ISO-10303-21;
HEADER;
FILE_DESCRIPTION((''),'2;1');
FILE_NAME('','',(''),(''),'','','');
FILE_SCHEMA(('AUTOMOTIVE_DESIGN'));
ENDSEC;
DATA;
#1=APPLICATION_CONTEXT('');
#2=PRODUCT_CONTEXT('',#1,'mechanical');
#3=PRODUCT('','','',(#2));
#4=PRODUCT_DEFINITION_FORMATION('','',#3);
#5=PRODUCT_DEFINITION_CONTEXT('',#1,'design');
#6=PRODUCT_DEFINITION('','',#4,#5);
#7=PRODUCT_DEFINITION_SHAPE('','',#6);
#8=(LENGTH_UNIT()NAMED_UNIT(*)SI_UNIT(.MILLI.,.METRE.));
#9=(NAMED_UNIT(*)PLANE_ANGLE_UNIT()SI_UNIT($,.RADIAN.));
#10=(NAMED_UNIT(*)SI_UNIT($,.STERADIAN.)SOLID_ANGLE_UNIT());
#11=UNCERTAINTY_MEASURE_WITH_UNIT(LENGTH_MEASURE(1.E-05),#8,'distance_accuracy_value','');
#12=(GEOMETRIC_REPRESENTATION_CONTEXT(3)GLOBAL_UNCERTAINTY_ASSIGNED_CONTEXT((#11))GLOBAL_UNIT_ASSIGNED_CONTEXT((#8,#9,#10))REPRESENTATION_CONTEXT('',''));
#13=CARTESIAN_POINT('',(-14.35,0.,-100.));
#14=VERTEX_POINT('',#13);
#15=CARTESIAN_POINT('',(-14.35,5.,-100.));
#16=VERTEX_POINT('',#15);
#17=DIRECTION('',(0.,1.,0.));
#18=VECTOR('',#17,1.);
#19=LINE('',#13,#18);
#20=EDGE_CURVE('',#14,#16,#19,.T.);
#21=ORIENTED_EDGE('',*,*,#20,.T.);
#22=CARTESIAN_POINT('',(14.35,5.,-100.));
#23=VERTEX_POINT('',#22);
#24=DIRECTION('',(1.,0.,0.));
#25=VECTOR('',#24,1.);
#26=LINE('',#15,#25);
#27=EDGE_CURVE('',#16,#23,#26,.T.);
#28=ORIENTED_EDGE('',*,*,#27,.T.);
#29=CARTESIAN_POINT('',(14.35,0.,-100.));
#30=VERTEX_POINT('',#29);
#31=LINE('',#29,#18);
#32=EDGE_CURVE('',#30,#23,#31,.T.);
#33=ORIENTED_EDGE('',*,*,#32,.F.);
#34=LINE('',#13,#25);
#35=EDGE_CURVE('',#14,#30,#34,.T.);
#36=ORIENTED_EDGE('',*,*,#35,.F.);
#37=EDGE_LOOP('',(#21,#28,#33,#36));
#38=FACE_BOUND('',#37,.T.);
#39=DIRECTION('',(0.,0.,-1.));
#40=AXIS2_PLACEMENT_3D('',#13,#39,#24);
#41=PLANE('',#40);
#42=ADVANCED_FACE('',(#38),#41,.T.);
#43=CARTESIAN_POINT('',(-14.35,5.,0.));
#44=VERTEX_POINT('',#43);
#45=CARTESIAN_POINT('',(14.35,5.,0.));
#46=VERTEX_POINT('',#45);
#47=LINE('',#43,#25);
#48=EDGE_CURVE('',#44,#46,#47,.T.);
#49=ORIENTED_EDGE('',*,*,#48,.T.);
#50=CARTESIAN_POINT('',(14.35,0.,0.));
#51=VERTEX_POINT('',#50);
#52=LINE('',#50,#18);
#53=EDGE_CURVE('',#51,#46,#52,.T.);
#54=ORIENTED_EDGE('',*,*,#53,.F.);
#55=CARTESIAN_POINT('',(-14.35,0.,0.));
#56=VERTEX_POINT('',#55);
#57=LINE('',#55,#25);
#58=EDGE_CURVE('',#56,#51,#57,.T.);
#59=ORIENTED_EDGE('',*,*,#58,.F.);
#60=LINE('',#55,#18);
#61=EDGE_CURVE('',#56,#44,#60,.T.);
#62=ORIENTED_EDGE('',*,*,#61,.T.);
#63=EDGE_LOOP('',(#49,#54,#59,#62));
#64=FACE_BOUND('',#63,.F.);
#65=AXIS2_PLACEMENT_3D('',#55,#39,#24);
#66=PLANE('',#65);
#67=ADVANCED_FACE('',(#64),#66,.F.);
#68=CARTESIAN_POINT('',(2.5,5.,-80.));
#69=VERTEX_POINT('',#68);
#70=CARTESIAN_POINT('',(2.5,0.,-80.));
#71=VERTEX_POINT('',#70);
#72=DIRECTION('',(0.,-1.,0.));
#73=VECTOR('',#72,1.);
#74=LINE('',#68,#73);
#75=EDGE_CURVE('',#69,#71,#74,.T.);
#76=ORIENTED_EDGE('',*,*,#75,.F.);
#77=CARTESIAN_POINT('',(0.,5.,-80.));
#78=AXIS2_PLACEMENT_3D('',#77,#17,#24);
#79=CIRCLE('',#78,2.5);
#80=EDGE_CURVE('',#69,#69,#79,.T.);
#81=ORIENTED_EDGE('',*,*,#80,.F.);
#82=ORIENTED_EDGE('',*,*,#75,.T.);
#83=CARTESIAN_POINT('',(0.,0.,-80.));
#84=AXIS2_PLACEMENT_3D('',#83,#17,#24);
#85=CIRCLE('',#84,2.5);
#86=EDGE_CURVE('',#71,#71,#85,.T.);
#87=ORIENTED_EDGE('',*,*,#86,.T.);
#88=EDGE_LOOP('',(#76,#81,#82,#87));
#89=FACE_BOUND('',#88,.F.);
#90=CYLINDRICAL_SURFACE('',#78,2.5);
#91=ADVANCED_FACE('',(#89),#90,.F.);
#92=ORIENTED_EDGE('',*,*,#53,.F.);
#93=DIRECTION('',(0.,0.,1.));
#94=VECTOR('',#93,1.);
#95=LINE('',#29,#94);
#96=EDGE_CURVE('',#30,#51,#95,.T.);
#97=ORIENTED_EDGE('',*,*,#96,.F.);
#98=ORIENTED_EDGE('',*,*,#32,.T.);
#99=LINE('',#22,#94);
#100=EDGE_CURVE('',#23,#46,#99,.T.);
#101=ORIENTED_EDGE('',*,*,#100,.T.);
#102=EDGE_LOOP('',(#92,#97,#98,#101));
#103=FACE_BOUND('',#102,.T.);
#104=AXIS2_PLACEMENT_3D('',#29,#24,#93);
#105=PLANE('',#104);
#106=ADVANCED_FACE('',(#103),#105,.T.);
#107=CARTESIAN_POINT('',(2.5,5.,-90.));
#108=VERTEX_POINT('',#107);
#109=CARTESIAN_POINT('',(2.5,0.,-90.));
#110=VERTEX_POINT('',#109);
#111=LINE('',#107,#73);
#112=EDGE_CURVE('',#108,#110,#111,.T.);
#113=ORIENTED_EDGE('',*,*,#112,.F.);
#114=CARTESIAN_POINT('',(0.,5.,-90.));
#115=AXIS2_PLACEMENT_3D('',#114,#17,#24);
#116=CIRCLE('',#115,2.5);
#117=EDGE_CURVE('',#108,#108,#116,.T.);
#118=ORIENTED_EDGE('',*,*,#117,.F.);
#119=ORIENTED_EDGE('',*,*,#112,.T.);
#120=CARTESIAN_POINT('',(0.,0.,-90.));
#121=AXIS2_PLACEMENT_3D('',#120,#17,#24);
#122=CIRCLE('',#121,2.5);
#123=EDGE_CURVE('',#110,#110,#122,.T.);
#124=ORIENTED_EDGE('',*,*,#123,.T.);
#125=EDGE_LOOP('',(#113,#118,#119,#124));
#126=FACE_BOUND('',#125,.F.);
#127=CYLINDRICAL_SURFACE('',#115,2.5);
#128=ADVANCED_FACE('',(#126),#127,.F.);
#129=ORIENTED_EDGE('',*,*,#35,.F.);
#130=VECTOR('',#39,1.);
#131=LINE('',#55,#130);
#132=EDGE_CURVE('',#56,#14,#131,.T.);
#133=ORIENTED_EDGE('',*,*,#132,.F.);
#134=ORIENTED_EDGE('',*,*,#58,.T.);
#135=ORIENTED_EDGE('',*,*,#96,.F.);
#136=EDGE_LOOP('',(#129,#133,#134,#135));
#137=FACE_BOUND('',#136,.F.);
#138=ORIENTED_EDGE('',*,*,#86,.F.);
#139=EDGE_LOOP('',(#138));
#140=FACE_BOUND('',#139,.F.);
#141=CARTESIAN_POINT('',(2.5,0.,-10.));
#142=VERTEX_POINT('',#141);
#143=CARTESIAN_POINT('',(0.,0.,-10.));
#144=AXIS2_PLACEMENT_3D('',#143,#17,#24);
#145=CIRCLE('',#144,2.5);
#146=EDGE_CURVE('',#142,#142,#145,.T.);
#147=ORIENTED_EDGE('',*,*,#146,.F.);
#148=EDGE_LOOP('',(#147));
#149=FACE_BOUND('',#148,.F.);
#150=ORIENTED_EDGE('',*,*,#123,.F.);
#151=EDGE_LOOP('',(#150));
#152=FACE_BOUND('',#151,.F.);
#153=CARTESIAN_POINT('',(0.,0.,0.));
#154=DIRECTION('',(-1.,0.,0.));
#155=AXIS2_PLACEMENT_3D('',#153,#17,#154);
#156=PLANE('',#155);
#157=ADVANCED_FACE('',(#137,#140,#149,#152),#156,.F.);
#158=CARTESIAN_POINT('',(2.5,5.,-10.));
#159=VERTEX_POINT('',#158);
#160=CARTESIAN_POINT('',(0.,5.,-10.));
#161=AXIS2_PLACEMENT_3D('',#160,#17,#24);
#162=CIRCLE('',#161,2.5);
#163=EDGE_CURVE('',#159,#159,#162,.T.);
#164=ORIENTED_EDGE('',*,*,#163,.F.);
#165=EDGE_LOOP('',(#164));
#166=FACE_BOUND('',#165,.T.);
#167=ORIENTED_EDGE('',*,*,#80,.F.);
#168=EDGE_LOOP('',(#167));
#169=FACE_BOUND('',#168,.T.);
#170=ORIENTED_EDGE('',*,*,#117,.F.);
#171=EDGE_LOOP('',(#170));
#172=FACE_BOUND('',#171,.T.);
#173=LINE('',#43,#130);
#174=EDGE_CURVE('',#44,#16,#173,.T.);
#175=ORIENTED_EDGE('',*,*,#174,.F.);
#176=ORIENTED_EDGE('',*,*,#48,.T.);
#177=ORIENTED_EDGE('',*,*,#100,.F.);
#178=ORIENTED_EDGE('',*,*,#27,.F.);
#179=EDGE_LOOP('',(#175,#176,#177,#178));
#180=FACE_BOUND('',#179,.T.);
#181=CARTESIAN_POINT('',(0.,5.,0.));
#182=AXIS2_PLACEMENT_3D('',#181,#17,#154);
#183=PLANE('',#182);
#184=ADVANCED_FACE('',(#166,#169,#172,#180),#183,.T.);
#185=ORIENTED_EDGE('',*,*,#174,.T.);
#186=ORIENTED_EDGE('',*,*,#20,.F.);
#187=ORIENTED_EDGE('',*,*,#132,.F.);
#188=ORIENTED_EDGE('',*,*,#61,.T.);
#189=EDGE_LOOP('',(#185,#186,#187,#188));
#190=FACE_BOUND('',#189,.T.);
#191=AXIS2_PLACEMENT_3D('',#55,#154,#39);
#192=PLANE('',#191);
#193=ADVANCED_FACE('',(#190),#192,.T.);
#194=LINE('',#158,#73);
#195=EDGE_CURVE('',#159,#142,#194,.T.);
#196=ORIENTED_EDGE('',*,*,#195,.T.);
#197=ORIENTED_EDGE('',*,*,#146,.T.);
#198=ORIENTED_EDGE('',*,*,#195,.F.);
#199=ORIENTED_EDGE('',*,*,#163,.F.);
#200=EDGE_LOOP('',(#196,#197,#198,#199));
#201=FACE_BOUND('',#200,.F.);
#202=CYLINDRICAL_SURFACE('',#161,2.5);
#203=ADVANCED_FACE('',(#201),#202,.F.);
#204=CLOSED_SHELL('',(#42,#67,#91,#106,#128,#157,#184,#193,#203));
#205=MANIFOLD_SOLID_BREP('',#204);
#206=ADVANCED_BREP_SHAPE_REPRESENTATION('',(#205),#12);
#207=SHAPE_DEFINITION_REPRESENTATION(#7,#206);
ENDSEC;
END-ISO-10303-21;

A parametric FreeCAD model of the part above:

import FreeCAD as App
import Part
import Sketcher


def add_polygon(sketch, points):
    """Adds a closed chain of lines whose ends are joined by coincident constraints."""
    first, n = sketch.GeometryCount, len(points)
    for a, b in zip(points, points[1:] + points[:1]):
        sketch.addGeometry(Part.LineSegment(App.Vector(*a, 0), App.Vector(*b, 0)), False)
    for i in range(n):
        sketch.addConstraint(Sketcher.Constraint("Coincident", first + i, 2, first + (i + 1) % n, 1))

doc = App.newDocument("Part")
params = doc.addObject("Spreadsheet::Sheet", "Params")
for row, (alias, value) in enumerate([
    ("sketch1_height", "100 mm"),
    ("sketch1_width", "28.7 mm"),
    ("pad1_length", "5 mm"),
    ("sketch2_diameter", "5 mm"),
], start=1):
    params.set(f"A{row}", alias)
    params.set(f"B{row}", "=" + value)
    params.setAlias(f"B{row}", alias)

body = doc.addObject("PartDesign::Body", "Body")

# Sketch on XZ plane
sketch1 = body.newObject("Sketcher::SketchObject", "Sketch")
sketch1.AttachmentSupport = (doc.getObject("XZ_Plane"), [""])
sketch1.MapMode = "FlatFace"
add_polygon(sketch1, [(14, -100), (-14, -100), (-14, 0), (14, 0)])  # lines 0-3
sketch1.addConstraint([
    Sketcher.Constraint("Horizontal", 0),
    Sketcher.Constraint("Vertical", 1),
    Sketcher.Constraint("Horizontal", 2),
    Sketcher.Constraint("Vertical", 3),
    Sketcher.Constraint("Symmetric", 1, 2, 2, 2, -1, 1),
    Sketcher.Constraint("DistanceY", 1, 1, 1, 2, 100.0),
    Sketcher.Constraint("DistanceX", 0, 2, 0, 1, 28.7),
])
sketch1.setExpression("Constraints[9]", "Params.sketch1_height")
sketch1.setExpression("Constraints[10]", "Params.sketch1_width")
pad1 = body.newObject("PartDesign::Pad", "Pad")
pad1.Profile = sketch1
pad1.setExpression("Length", "Params.pad1_length")
pad1.Reversed = True

# Sketch on XZ plane
sketch2 = body.newObject("Sketcher::SketchObject", "Sketch001")
sketch2.AttachmentSupport = (doc.getObject("XZ_Plane"), [""])
sketch2.MapMode = "FlatFace"
sketch2.AttachmentOffset = App.Placement(App.Vector(0, 0, -5), App.Rotation())
sketch2.addGeometry([
    Part.Circle(App.Vector(0, -80, 0), App.Vector(0, 0, 1), 2.5),
    Part.Circle(App.Vector(0, -90, 0), App.Vector(0, 0, 1), 2.5),
    Part.Circle(App.Vector(0, -10, 0), App.Vector(0, 0, 1), 2.5),
], False)
sketch2.addConstraint([
    Sketcher.Constraint("Equal", 0, 1),
    Sketcher.Constraint("Equal", 1, 2),
    Sketcher.Constraint("PointOnObject", 0, 3, -2),
    Sketcher.Constraint("PointOnObject", 1, 3, -2),
    Sketcher.Constraint("PointOnObject", 2, 3, -2),
    Sketcher.Constraint("Diameter", 0, 5.0),
    Sketcher.Constraint("DistanceY", 0, 3, -1, 1, 80.0),
    Sketcher.Constraint("DistanceY", 1, 3, -1, 1, 90.0),
    Sketcher.Constraint("DistanceY", 2, 3, -1, 1, 10.0),
])
sketch2.setExpression("Constraints[5]", "Params.sketch2_diameter")
pocket1 = body.newObject("PartDesign::Pocket", "Pocket")
pocket1.Profile = sketch2
pocket1.Type = "ThroughAll"
pocket1.Reversed = True

doc.recompute()
